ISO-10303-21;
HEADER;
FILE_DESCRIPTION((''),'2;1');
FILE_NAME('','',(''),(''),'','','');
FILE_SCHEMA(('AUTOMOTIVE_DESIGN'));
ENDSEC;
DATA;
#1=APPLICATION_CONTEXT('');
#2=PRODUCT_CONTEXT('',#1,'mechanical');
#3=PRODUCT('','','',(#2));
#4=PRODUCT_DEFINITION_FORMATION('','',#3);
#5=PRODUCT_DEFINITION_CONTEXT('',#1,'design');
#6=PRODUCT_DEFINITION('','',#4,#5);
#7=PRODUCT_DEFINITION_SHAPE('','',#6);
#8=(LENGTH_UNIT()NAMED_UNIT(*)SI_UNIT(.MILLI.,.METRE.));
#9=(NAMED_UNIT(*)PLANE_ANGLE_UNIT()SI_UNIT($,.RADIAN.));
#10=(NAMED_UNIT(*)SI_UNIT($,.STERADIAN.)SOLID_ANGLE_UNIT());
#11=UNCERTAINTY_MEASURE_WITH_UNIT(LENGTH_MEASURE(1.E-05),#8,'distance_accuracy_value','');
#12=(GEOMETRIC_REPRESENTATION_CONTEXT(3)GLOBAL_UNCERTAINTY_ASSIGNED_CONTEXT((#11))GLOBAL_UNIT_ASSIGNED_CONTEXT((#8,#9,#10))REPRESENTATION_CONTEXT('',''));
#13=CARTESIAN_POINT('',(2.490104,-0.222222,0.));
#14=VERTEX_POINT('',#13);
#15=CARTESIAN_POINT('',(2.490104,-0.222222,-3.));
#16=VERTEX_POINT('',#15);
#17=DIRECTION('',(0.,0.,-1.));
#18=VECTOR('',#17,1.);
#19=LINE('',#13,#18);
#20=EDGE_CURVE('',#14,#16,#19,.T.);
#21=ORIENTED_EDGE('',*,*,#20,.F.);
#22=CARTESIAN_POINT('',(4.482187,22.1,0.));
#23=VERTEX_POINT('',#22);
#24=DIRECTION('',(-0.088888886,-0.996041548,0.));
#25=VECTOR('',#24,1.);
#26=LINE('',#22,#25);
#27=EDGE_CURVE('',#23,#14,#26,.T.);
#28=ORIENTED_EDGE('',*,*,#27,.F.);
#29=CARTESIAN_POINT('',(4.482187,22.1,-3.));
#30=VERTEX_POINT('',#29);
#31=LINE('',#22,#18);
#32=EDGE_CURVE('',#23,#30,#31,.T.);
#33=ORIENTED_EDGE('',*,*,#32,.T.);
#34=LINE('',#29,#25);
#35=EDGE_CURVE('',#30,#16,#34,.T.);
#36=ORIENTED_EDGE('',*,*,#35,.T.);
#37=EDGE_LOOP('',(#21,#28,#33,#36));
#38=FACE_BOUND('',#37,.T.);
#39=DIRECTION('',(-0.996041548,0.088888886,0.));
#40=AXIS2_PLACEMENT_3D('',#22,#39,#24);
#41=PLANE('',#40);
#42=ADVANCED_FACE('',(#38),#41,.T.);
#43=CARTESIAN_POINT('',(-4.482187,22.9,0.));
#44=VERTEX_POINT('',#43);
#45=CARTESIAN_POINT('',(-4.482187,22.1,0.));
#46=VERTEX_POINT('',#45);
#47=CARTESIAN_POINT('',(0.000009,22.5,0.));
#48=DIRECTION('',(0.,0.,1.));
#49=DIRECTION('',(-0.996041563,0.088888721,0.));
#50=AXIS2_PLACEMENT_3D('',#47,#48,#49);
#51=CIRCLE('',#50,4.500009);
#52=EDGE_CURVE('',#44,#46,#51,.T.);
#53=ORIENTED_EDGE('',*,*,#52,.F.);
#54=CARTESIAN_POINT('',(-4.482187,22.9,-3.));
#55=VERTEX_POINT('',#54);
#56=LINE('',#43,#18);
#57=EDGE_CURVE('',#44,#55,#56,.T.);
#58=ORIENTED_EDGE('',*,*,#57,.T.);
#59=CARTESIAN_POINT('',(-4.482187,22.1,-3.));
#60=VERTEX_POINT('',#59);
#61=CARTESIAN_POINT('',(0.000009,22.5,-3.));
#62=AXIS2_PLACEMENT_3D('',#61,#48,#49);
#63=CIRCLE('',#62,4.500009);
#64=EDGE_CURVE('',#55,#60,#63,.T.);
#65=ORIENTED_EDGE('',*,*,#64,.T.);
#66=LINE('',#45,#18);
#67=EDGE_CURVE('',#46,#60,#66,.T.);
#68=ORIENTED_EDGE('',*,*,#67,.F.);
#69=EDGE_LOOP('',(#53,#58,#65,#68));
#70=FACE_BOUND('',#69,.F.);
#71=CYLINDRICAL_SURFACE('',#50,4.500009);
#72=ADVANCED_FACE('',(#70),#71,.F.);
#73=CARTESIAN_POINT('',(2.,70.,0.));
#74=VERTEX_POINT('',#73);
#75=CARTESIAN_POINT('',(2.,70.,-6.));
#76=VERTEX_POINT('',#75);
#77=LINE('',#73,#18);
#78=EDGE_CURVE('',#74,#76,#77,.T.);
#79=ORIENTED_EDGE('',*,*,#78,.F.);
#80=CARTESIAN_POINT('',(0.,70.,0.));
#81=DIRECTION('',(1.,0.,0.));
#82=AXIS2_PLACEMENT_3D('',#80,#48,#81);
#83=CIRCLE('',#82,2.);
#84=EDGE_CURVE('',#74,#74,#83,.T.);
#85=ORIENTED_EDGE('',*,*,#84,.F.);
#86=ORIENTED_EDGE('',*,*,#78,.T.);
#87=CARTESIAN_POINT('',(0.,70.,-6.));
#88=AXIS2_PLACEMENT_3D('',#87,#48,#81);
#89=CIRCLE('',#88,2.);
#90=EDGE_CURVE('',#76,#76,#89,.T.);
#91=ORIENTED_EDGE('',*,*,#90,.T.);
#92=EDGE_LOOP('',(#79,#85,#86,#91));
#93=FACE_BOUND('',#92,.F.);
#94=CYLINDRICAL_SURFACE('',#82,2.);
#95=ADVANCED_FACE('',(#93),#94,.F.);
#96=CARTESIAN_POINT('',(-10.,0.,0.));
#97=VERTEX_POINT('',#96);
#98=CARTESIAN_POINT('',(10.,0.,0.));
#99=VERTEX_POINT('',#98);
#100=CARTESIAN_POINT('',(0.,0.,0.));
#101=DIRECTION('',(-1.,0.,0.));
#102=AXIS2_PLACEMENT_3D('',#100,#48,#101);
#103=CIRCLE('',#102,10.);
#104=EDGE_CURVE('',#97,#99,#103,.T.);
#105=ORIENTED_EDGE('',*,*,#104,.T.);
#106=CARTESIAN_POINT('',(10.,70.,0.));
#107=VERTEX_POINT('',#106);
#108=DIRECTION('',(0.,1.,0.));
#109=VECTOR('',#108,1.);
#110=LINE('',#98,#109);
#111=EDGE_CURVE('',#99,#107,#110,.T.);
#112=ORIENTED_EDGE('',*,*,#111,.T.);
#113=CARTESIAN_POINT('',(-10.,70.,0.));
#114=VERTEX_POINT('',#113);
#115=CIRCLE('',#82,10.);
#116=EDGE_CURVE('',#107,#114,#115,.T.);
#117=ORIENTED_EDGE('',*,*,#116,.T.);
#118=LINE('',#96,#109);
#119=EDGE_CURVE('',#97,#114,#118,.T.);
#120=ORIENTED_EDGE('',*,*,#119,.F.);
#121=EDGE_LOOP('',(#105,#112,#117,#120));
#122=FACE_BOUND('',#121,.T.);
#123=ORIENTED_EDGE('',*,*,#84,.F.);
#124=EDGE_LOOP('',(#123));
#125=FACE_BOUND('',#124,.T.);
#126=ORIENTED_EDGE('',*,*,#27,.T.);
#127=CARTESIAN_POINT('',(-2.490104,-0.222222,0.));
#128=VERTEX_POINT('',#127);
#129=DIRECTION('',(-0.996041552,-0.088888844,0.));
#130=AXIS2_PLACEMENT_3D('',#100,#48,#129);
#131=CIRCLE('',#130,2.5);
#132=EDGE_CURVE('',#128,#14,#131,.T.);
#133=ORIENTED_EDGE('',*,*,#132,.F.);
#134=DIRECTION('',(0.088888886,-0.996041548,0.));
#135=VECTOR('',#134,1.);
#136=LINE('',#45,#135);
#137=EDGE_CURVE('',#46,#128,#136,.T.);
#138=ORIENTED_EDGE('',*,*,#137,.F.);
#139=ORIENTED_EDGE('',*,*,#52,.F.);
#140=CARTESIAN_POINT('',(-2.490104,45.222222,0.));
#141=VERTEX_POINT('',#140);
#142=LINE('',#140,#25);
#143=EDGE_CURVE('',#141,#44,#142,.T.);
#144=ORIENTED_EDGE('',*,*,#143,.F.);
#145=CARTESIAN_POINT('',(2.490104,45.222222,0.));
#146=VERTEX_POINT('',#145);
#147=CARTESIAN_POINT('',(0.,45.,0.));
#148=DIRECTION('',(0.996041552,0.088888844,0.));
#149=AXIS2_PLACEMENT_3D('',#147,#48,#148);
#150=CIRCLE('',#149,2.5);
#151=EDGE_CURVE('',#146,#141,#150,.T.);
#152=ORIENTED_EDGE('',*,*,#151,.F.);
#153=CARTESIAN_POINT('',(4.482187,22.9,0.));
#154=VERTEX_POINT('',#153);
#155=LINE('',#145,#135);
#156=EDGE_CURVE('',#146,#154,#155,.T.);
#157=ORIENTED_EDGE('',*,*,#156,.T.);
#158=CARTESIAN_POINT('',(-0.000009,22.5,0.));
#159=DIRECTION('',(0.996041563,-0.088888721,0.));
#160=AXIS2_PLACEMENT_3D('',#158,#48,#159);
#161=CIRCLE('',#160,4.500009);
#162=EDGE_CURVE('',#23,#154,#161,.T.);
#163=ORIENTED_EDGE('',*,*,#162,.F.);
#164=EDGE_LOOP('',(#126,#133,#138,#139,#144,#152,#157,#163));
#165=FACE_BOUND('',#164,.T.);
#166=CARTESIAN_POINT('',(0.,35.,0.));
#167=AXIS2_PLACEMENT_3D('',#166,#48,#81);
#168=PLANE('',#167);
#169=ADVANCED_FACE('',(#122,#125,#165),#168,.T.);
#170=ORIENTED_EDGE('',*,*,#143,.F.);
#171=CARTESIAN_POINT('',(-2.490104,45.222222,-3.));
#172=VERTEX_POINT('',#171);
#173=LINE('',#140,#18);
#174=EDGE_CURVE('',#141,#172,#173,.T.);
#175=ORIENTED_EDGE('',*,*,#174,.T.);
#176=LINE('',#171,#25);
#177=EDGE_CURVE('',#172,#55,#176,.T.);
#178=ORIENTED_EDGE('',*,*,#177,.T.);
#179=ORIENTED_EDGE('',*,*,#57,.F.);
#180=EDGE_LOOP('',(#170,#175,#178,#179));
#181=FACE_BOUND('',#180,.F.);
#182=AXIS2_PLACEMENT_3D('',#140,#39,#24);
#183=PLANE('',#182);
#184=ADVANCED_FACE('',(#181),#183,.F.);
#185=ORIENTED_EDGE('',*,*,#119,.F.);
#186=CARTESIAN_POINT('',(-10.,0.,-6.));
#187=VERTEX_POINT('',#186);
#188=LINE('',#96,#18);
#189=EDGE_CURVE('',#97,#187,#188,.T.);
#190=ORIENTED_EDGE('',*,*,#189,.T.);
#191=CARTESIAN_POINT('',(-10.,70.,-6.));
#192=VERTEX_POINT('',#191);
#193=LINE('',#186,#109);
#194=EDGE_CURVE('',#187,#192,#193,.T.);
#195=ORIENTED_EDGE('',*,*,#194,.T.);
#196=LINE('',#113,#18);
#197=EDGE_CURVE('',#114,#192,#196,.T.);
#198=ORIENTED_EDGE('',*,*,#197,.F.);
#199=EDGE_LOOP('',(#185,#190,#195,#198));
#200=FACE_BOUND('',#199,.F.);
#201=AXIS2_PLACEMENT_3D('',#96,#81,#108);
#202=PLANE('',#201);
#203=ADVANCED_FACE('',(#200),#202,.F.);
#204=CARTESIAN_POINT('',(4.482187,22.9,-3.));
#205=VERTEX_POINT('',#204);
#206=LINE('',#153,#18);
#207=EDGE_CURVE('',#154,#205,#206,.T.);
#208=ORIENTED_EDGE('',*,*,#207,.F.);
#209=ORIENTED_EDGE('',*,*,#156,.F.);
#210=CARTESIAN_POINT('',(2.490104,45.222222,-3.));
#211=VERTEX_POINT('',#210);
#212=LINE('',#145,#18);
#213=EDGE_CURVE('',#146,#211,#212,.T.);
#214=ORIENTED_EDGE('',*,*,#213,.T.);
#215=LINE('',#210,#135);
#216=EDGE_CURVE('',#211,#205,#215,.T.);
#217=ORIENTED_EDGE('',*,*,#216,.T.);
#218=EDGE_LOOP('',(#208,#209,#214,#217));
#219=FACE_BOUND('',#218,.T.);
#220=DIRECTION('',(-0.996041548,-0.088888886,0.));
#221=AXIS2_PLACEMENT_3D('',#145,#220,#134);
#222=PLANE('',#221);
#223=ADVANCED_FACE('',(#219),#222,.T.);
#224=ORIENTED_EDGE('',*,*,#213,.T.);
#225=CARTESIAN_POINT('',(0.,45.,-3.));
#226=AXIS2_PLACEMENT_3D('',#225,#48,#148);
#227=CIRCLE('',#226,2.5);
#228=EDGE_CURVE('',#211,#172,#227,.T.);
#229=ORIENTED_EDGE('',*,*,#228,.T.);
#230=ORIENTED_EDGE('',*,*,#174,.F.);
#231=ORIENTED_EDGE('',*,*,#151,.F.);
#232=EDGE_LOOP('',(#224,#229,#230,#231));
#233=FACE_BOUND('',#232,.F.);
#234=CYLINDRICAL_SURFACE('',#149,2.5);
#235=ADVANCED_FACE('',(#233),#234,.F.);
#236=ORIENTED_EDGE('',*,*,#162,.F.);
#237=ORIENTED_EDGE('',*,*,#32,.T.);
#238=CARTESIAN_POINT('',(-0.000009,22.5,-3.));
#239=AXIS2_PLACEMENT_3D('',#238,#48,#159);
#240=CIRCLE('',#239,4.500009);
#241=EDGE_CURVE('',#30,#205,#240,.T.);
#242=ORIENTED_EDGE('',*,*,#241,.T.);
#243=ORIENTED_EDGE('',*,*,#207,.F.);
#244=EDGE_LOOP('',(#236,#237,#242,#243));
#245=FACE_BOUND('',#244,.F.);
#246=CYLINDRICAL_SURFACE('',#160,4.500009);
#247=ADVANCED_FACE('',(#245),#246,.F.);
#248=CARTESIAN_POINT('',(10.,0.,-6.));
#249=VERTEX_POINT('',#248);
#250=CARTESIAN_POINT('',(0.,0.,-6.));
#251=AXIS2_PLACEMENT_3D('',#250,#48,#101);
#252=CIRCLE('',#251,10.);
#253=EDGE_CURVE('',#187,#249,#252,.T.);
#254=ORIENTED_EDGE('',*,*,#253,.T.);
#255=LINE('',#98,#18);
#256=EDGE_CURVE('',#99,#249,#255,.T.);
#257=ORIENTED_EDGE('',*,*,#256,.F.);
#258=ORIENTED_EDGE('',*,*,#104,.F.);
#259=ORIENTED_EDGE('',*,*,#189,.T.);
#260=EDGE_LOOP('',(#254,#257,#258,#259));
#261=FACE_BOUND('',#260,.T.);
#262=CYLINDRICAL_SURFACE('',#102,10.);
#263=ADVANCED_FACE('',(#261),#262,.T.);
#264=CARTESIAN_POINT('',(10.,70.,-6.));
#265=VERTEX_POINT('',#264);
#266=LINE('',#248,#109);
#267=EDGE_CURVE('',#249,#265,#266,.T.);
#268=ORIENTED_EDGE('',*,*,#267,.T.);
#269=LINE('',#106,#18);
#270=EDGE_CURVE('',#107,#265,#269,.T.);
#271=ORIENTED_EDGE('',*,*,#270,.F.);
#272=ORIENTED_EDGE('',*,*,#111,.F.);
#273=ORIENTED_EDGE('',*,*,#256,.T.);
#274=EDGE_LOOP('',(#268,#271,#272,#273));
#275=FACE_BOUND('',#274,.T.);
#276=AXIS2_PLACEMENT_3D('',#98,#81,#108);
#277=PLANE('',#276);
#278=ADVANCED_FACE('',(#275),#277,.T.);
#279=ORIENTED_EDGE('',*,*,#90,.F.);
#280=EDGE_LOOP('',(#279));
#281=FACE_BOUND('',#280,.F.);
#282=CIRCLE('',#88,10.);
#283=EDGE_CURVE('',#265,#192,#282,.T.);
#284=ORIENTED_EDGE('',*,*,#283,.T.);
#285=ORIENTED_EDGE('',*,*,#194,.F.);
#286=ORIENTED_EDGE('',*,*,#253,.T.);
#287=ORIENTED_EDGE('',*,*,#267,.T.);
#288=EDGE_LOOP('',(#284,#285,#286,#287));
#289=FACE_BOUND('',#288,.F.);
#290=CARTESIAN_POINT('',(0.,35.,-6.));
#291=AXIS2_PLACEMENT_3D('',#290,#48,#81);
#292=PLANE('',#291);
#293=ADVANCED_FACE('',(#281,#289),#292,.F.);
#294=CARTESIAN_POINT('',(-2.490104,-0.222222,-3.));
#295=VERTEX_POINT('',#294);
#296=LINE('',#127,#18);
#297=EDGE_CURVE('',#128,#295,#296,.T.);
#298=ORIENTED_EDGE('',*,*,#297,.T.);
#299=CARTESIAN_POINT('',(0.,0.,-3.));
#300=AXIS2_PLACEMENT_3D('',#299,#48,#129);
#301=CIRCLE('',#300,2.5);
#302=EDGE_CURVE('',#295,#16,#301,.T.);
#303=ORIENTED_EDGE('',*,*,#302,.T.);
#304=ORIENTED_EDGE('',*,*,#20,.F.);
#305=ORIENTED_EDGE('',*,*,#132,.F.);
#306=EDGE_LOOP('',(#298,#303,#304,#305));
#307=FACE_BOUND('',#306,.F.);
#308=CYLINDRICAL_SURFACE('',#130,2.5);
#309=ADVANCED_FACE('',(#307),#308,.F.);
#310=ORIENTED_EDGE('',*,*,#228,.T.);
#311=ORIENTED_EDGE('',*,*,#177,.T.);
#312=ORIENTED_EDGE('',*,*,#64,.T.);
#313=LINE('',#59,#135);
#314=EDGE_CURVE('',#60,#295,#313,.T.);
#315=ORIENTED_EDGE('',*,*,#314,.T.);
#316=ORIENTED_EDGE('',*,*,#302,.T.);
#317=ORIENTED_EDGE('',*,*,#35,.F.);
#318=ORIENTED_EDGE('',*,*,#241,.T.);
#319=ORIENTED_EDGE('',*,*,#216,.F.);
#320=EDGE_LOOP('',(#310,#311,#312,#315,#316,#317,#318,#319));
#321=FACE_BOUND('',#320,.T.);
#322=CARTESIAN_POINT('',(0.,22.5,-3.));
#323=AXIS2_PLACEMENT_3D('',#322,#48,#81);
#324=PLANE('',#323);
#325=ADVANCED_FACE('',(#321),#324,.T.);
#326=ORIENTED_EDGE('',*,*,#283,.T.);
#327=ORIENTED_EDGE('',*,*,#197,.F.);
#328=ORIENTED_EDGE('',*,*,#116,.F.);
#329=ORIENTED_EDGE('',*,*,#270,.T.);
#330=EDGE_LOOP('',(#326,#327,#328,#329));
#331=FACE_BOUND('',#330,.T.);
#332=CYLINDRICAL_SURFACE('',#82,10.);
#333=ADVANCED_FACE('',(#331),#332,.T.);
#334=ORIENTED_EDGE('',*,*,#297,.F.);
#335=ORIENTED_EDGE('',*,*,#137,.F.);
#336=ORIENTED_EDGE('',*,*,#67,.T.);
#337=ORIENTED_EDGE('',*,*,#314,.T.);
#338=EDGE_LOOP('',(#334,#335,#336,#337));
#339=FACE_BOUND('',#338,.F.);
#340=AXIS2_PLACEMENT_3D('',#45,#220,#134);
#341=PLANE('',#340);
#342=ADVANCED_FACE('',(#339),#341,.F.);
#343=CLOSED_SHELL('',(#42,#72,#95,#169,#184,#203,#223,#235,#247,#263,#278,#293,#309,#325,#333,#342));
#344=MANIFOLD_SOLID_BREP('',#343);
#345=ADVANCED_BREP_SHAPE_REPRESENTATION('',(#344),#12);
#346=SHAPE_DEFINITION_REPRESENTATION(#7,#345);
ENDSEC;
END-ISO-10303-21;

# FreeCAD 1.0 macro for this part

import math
import FreeCAD as App
import Part
import Sketcher

doc = App.newDocument("Part")
params = doc.addObject("Spreadsheet::Sheet", "Params")
for row, (alias, value) in enumerate([
    ("sketch1_radius", "2.5 mm"),
    ("pad1_length", "3 mm"),
    ("sketch2_radius", "10 mm"),
    ("sketch2_height", "70 mm"),
    ("pad2_length", "6 mm"),
    ("sketch3_diameter", "4 mm"),
], start=1):
    params.set(f"A{row}", alias)
    params.set(f"B{row}", "=" + value)
    params.setAlias(f"B{row}", alias)

body = doc.addObject("PartDesign::Body", "Body")

# Sketch on XY plane
sketch1 = doc.addObject("Sketcher::SketchObject", "Sketch")
body.addObject(sketch1)
sketch1.AttachmentSupport = (doc.XY_Plane, [""])
sketch1.MapMode = "FlatFace"
sketch1.addGeometry([
    Part.ArcOfCircle(Part.Circle(App.Vector(0, 0, 0), App.Vector(0, 0, 1), 2.5), math.radians(-174.900314), math.radians(-5.099686)),  # 0
    Part.LineSegment(App.Vector(2.490104, -0.222222, 0), App.Vector(4.482187, 22.1, 0)),  # 1
    Part.ArcOfCircle(Part.Circle(App.Vector(-0.000009, 22.5, 0), App.Vector(0, 0, 1), 4.500009), math.radians(-5.099679), math.radians(5.099679)),  # 2
    Part.LineSegment(App.Vector(4.482187, 22.9, 0), App.Vector(2.490104, 45.222222, 0)),  # 3
    Part.ArcOfCircle(Part.Circle(App.Vector(0, 45, 0), App.Vector(0, 0, 1), 2.5), math.radians(5.099686), math.radians(174.900314)),  # 4
    Part.LineSegment(App.Vector(-2.490104, 45.222222, 0), App.Vector(-4.482187, 22.9, 0)),  # 5
    Part.ArcOfCircle(Part.Circle(App.Vector(0.000009, 22.5, 0), App.Vector(0, 0, 1), 4.500009), math.radians(174.900321), math.radians(185.099679)),  # 6
    Part.LineSegment(App.Vector(-4.482187, 22.1, 0), App.Vector(-2.490104, -0.222222, 0)),  # 7
], False)
sketch1.addConstraint([
    Sketcher.Constraint("Tangent", 0, 2, 1, 1),
    Sketcher.Constraint("Tangent", 1, 2, 2, 1),
    Sketcher.Constraint("Tangent", 2, 2, 3, 1),
    Sketcher.Constraint("Tangent", 3, 2, 4, 1),
    Sketcher.Constraint("Tangent", 4, 2, 5, 1),
    Sketcher.Constraint("Tangent", 5, 2, 6, 1),
    Sketcher.Constraint("Tangent", 6, 2, 7, 1),
    Sketcher.Constraint("Tangent", 7, 2, 0, 1),
    Sketcher.Constraint("Coincident", 0, 3, -1, 1),
    Sketcher.Constraint("Equal", 0, 4),
    Sketcher.Constraint("Equal", 2, 6),
    Sketcher.Constraint("Symmetric", 2, 3, 6, 3, -2),
    Sketcher.Constraint("PointOnObject", 4, 3, -2),
    Sketcher.Constraint("Parallel", 1, 5),
    Sketcher.Constraint("Radius", 0, 2.5),
    Sketcher.Constraint("DistanceY", -1, 1, 4, 3, 45.0),
    Sketcher.Constraint("DistanceY", -1, 1, 1, 2, 22.1),
    Sketcher.Constraint("Radius", 2, 4.500009),
])
sketch1.setExpression("Constraints[14]", "Params.sketch1_radius")
pad1 = doc.addObject("PartDesign::Pad", "Pad")
body.addObject(pad1)
pad1.Profile = sketch1
pad1.setExpression("Length", "Params.pad1_length")
pad1.Reversed = True
body2 = doc.addObject("PartDesign::Body", "Body001")

# Sketch on XY plane
sketch2 = doc.addObject("Sketcher::SketchObject", "Sketch001")
body2.addObject(sketch2)
sketch2.AttachmentSupport = (doc.getObject("XY_Plane001"), [""])
sketch2.MapMode = "FlatFace"
sketch2.addGeometry([
    Part.ArcOfCircle(Part.Circle(App.Vector(0, 0, 0), App.Vector(0, 0, 1), 10), math.radians(180), math.radians(360)),
    Part.LineSegment(App.Vector(10, 0, 0), App.Vector(10, 70, 0)),
    Part.ArcOfCircle(Part.Circle(App.Vector(0, 70, 0), App.Vector(0, 0, 1), 10), math.radians(0), math.radians(180)),
    Part.LineSegment(App.Vector(-10, 70, 0), App.Vector(-10, 0, 0)),
], False)
sketch2.addConstraint([
    Sketcher.Constraint("Tangent", 0, 2, 1, 1),
    Sketcher.Constraint("Tangent", 1, 2, 2, 1),
    Sketcher.Constraint("Tangent", 2, 2, 3, 1),
    Sketcher.Constraint("Tangent", 3, 2, 0, 1),
    Sketcher.Constraint("Vertical", 1),
    Sketcher.Constraint("Vertical", 3),
    Sketcher.Constraint("Coincident", 0, 3, -1, 1),
    Sketcher.Constraint("Radius", 0, 10.0),
    Sketcher.Constraint("DistanceY", 1, 1, 1, 2, 70.0),
])
sketch2.setExpression("Constraints[7]", "Params.sketch2_radius")
sketch2.setExpression("Constraints[8]", "Params.sketch2_height")
pad2 = doc.addObject("PartDesign::Pad", "Pad001")
body2.addObject(pad2)
pad2.Profile = sketch2
pad2.setExpression("Length", "Params.pad2_length")
pad2.Reversed = True

# Sketch on XY plane
sketch3 = doc.addObject("Sketcher::SketchObject", "Sketch002")
body2.addObject(sketch3)
sketch3.AttachmentSupport = (doc.getObject("XY_Plane001"), [""])
sketch3.MapMode = "FlatFace"
sketch3.addGeometry(Part.Circle(App.Vector(0, 70, 0), App.Vector(0, 0, 1), 2), False)
sketch3.addConstraint([
    Sketcher.Constraint("PointOnObject", 0, 3, -2),
    Sketcher.Constraint("Diameter", 0, 4.0),
    Sketcher.Constraint("DistanceY", -1, 1, 0, 3, 70.0),
])
sketch3.setExpression("Constraints[1]", "Params.sketch3_diameter")
pocket1 = doc.addObject("PartDesign::Pocket", "Pocket")
body2.addObject(pocket1)
pocket1.Profile = sketch3
pocket1.Type = "ThroughAll"
pocket1.Midplane = True
doc.recompute()

boolean = doc.addObject("PartDesign::Boolean", "Boolean")
body2.addObject(boolean)
boolean.Type = "Cut"
boolean.addObjects([body])

doc.recompute()
